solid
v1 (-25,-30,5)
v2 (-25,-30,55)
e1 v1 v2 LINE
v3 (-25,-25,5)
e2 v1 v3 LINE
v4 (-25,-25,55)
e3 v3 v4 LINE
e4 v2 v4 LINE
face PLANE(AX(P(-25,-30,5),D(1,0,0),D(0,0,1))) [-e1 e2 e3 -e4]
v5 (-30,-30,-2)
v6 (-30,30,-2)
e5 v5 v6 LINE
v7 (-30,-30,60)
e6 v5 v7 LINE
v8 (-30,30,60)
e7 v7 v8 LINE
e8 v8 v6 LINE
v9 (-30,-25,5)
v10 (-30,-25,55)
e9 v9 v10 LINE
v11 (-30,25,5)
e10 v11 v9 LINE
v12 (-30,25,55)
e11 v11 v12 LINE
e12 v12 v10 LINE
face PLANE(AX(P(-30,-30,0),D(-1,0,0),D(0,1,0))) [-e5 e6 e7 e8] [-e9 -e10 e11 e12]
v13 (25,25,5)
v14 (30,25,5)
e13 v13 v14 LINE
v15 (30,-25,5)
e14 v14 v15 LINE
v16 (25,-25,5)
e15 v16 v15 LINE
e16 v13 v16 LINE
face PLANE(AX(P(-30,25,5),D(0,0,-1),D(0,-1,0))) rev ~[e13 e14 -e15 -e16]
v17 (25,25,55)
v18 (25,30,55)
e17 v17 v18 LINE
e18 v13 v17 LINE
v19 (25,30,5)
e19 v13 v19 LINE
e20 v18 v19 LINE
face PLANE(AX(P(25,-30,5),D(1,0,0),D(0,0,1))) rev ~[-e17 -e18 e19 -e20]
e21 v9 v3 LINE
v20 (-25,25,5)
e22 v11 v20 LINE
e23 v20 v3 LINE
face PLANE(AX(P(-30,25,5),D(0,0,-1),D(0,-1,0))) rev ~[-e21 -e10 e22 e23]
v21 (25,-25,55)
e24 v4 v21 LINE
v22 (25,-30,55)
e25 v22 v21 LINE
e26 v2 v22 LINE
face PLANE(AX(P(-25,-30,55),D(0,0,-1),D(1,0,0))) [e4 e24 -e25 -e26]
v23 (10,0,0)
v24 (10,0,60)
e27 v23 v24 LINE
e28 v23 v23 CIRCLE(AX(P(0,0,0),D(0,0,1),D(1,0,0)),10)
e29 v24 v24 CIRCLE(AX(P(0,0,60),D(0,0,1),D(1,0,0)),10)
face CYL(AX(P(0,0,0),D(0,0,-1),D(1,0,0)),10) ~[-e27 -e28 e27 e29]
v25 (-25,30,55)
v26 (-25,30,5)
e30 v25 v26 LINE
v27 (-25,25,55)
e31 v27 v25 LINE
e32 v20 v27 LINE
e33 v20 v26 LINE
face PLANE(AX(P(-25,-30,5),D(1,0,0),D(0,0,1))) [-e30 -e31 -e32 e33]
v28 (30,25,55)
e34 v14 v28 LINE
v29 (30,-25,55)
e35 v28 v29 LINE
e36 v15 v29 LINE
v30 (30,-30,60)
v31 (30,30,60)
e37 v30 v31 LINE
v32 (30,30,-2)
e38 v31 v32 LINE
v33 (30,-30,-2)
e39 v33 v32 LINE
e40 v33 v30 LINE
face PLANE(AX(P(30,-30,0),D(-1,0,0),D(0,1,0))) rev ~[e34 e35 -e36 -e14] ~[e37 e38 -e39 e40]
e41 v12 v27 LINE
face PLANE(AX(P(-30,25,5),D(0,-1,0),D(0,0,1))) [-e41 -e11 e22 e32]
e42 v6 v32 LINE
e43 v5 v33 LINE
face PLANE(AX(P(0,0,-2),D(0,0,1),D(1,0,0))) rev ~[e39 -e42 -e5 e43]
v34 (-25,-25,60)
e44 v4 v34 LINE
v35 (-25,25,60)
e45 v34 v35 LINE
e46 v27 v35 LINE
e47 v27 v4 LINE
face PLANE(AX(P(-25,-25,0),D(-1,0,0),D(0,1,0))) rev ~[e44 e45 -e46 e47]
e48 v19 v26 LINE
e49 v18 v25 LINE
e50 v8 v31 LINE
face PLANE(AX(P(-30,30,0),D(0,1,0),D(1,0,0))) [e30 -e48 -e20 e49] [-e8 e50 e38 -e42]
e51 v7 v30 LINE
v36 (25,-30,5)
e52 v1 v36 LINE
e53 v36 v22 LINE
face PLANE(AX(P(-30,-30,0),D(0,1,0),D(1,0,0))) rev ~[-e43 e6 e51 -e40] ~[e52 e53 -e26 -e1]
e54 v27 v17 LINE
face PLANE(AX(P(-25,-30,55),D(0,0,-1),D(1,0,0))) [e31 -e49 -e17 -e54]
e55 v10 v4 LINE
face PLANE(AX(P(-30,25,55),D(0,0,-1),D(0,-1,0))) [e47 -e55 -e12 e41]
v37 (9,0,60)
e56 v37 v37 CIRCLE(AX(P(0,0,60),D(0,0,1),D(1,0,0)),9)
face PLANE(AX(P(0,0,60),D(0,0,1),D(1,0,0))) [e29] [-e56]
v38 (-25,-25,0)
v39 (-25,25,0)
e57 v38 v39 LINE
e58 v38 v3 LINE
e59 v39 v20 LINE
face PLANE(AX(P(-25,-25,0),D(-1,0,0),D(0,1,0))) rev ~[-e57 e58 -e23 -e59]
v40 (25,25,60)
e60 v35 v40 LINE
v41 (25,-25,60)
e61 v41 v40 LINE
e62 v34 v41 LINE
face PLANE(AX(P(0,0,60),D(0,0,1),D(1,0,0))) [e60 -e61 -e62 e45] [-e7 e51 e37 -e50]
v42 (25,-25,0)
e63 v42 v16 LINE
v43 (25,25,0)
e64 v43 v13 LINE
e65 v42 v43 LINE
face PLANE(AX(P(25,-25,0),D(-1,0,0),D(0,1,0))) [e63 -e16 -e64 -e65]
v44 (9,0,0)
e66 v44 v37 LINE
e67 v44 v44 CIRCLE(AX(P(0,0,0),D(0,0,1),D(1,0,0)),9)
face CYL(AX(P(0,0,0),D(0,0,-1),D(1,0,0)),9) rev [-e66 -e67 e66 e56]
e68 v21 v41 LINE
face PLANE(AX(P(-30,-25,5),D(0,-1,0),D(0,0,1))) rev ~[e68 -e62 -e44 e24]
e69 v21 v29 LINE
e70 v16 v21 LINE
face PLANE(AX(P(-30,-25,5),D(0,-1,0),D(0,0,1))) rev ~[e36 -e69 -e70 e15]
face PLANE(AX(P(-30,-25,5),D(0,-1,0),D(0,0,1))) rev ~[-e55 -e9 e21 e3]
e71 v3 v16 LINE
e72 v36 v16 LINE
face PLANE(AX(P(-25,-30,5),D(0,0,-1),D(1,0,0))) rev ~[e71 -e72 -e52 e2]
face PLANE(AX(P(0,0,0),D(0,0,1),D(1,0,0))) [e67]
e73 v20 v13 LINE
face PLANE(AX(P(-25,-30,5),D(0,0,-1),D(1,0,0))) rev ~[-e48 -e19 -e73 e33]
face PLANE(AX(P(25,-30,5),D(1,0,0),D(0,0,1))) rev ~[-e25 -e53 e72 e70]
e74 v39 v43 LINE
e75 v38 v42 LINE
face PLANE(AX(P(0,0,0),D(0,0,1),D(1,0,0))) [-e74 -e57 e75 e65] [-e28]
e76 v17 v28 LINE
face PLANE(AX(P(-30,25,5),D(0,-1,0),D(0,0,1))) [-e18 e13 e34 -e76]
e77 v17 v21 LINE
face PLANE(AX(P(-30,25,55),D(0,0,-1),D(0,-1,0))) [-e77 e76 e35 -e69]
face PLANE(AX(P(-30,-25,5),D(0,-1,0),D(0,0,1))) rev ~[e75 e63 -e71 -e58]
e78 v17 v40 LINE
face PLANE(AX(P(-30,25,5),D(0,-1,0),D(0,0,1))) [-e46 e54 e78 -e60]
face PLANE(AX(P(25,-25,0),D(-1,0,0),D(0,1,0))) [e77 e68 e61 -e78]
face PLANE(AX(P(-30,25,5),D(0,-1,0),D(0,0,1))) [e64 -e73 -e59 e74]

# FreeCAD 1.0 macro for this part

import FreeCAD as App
import Part
import Sketcher
from FreeCAD import Vector
Q = App.Units.Quantity

doc = App.newDocument("Part")
params = doc.addObject("Spreadsheet::Sheet", "Params")
for row, (alias, value) in enumerate([
    ("sketch1_width", "60 mm"),
    ("pad1_length", "2 mm"),
    ("sketch2_width", "60 mm"),
    ("sketch2_width2", "50 mm"),
    ("pad2_length", "60 mm"),
    ("sketch3_width", "50 mm"),
    ("sketch4_width", "50 mm"),
    ("sketch5_diameter", "20 mm"),
    ("sketch5_diameter2", "18 mm"),
    ("pad3_length", "60 mm"),
], start=1):
    params.set(f"A{row}", alias)
    params.set(f"B{row}", "=" + value)
    params.setAlias(f"B{row}", alias)

body = doc.addObject("PartDesign::Body", "Body")

sketch1 = doc.addObject("Sketcher::SketchObject", "Sketch")
body.addObject(sketch1)
sketch1.AttachmentSupport = (doc.XY_Plane, [""])
sketch1.MapMode = "FlatFace"
sketch1.addGeometry(Part.LineSegment(Vector(-30, 30, 0), Vector(-30, -30, 0)), False)
sketch1.addGeometry(Part.LineSegment(Vector(-30, -30, 0), Vector(30, -30, 0)), False)
sketch1.addGeometry(Part.LineSegment(Vector(30, -30, 0), Vector(30, 30, 0)), False)
sketch1.addGeometry(Part.LineSegment(Vector(30, 30, 0), Vector(-30, 30, 0)), False)
sketch1.addConstraint(Sketcher.Constraint("Coincident", 0, 2, 1, 1))
sketch1.addConstraint(Sketcher.Constraint("Coincident", 1, 2, 2, 1))
sketch1.addConstraint(Sketcher.Constraint("Coincident", 2, 2, 3, 1))
sketch1.addConstraint(Sketcher.Constraint("Coincident", 3, 2, 0, 1))
sketch1.addConstraint(Sketcher.Constraint("Vertical", 0))
sketch1.addConstraint(Sketcher.Constraint("Horizontal", 1))
sketch1.addConstraint(Sketcher.Constraint("Vertical", 2))
sketch1.addConstraint(Sketcher.Constraint("Horizontal", 3))
sketch1.addConstraint(Sketcher.Constraint("Symmetric", 0, 2, 2, 2, -1, 1))
sketch1.addConstraint(Sketcher.Constraint("Equal", 3, 0))
sketch1.addConstraint(Sketcher.Constraint("DistanceX", 1, 1, 1, 2, Q("60 mm")))
sketch1.setExpression("Constraints[10]", "Params.sketch1_width")
pad1 = doc.addObject("PartDesign::Pad", "Pad")
body.addObject(pad1)
pad1.Profile = sketch1
pad1.setExpression("Length", "Params.pad1_length")
pad1.Reversed = True

sketch2 = doc.addObject("Sketcher::SketchObject", "Sketch001")
body.addObject(sketch2)
sketch2.AttachmentSupport = (doc.XY_Plane, [""])
sketch2.MapMode = "FlatFace"
sketch2.addGeometry(Part.LineSegment(Vector(-30, 30, 0), Vector(-30, -30, 0)), False)
sketch2.addGeometry(Part.LineSegment(Vector(-30, -30, 0), Vector(30, -30, 0)), False)
sketch2.addGeometry(Part.LineSegment(Vector(30, -30, 0), Vector(30, 30, 0)), False)
sketch2.addGeometry(Part.LineSegment(Vector(30, 30, 0), Vector(-30, 30, 0)), False)
sketch2.addGeometry(Part.LineSegment(Vector(25, -25, 0), Vector(-25, -25, 0)), False)
sketch2.addGeometry(Part.LineSegment(Vector(-25, -25, 0), Vector(-25, 25, 0)), False)
sketch2.addGeometry(Part.LineSegment(Vector(-25, 25, 0), Vector(25, 25, 0)), False)
sketch2.addGeometry(Part.LineSegment(Vector(25, 25, 0), Vector(25, -25, 0)), False)
sketch2.addConstraint(Sketcher.Constraint("Coincident", 0, 2, 1, 1))
sketch2.addConstraint(Sketcher.Constraint("Coincident", 1, 2, 2, 1))
sketch2.addConstraint(Sketcher.Constraint("Coincident", 2, 2, 3, 1))
sketch2.addConstraint(Sketcher.Constraint("Coincident", 3, 2, 0, 1))
sketch2.addConstraint(Sketcher.Constraint("Coincident", 4, 2, 5, 1))
sketch2.addConstraint(Sketcher.Constraint("Coincident", 5, 2, 6, 1))
sketch2.addConstraint(Sketcher.Constraint("Coincident", 6, 2, 7, 1))
sketch2.addConstraint(Sketcher.Constraint("Coincident", 7, 2, 4, 1))
sketch2.addConstraint(Sketcher.Constraint("Vertical", 0))
sketch2.addConstraint(Sketcher.Constraint("Horizontal", 1))
sketch2.addConstraint(Sketcher.Constraint("Vertical", 2))
sketch2.addConstraint(Sketcher.Constraint("Horizontal", 3))
sketch2.addConstraint(Sketcher.Constraint("Horizontal", 4))
sketch2.addConstraint(Sketcher.Constraint("Vertical", 5))
sketch2.addConstraint(Sketcher.Constraint("Horizontal", 6))
sketch2.addConstraint(Sketcher.Constraint("Vertical", 7))
sketch2.addConstraint(Sketcher.Constraint("Symmetric", 0, 2, 2, 2, -1, 1))
sketch2.addConstraint(Sketcher.Constraint("Symmetric", 4, 2, 6, 2, -1, 1))
sketch2.addConstraint(Sketcher.Constraint("Equal", 3, 0))
sketch2.addConstraint(Sketcher.Constraint("Equal", 6, 5))
sketch2.addConstraint(Sketcher.Constraint("DistanceX", 1, 1, 1, 2, Q("60 mm")))
sketch2.addConstraint(Sketcher.Constraint("DistanceX", 4, 2, 4, 1, Q("50 mm")))
sketch2.setExpression("Constraints[20]", "Params.sketch2_width")
sketch2.setExpression("Constraints[21]", "Params.sketch2_width2")
pad2 = doc.addObject("PartDesign::Pad", "Pad001")
body.addObject(pad2)
pad2.Profile = sketch2
pad2.setExpression("Length", "Params.pad2_length")

sketch3 = doc.addObject("Sketcher::SketchObject", "Sketch002")
body.addObject(sketch3)
sketch3.AttachmentSupport = (doc.YZ_Plane, [""])
sketch3.MapMode = "FlatFace"
sketch3.AttachmentOffset = App.Placement(Vector(0, 0, -30), App.Rotation())
sketch3.addGeometry(Part.LineSegment(Vector(25, 55, 0), Vector(25, 5, 0)), False)
sketch3.addGeometry(Part.LineSegment(Vector(25, 5, 0), Vector(-25, 5, 0)), False)
sketch3.addGeometry(Part.LineSegment(Vector(-25, 5, 0), Vector(-25, 55, 0)), False)
sketch3.addGeometry(Part.LineSegment(Vector(-25, 55, 0), Vector(25, 55, 0)), False)
sketch3.addConstraint(Sketcher.Constraint("Coincident", 0, 2, 1, 1))
sketch3.addConstraint(Sketcher.Constraint("Coincident", 1, 2, 2, 1))
sketch3.addConstraint(Sketcher.Constraint("Coincident", 2, 2, 3, 1))
sketch3.addConstraint(Sketcher.Constraint("Coincident", 3, 2, 0, 1))
sketch3.addConstraint(Sketcher.Constraint("Vertical", 0))
sketch3.addConstraint(Sketcher.Constraint("Horizontal", 1))
sketch3.addConstraint(Sketcher.Constraint("Vertical", 2))
sketch3.addConstraint(Sketcher.Constraint("Horizontal", 3))
sketch3.addConstraint(Sketcher.Constraint("Equal", 3, 0))
sketch3.addConstraint(Sketcher.Constraint("DistanceX", 1, 2, 1, 1, Q("50 mm")))
sketch3.addConstraint(Sketcher.Constraint("DistanceX", -1, 1, 0, 2, Q("25 mm")))
sketch3.addConstraint(Sketcher.Constraint("DistanceY", -1, 1, 0, 2, Q("5 mm")))
sketch3.setExpression("Constraints[9]", "Params.sketch3_width")
pocket1 = doc.addObject("PartDesign::Pocket", "Pocket")
body.addObject(pocket1)
pocket1.Profile = sketch3
pocket1.Type = "ThroughAll"
pocket1.Reversed = True

sketch4 = doc.addObject("Sketcher::SketchObject", "Sketch003")
body.addObject(sketch4)
sketch4.AttachmentSupport = (doc.XZ_Plane, [""])
sketch4.MapMode = "FlatFace"
sketch4.AttachmentOffset = App.Placement(Vector(0, 0, 30), App.Rotation())
sketch4.addGeometry(Part.LineSegment(Vector(-25, 55, 0), Vector(-25, 5, 0)), False)
sketch4.addGeometry(Part.LineSegment(Vector(-25, 5, 0), Vector(25, 5, 0)), False)
sketch4.addGeometry(Part.LineSegment(Vector(25, 5, 0), Vector(25, 55, 0)), False)
sketch4.addGeometry(Part.LineSegment(Vector(25, 55, 0), Vector(-25, 55, 0)), False)
sketch4.addConstraint(Sketcher.Constraint("Coincident", 0, 2, 1, 1))
sketch4.addConstraint(Sketcher.Constraint("Coincident", 1, 2, 2, 1))
sketch4.addConstraint(Sketcher.Constraint("Coincident", 2, 2, 3, 1))
sketch4.addConstraint(Sketcher.Constraint("Coincident", 3, 2, 0, 1))
sketch4.addConstraint(Sketcher.Constraint("Vertical", 0))
sketch4.addConstraint(Sketcher.Constraint("Horizontal", 1))
sketch4.addConstraint(Sketcher.Constraint("Vertical", 2))
sketch4.addConstraint(Sketcher.Constraint("Horizontal", 3))
sketch4.addConstraint(Sketcher.Constraint("Equal", 3, 0))
sketch4.addConstraint(Sketcher.Constraint("DistanceX", 1, 1, 1, 2, Q("50 mm")))
sketch4.addConstraint(Sketcher.Constraint("DistanceX", 0, 2, -1, 1, Q("25 mm")))
sketch4.addConstraint(Sketcher.Constraint("DistanceY", -1, 1, 0, 2, Q("5 mm")))
sketch4.setExpression("Constraints[9]", "Params.sketch4_width")
pocket2 = doc.addObject("PartDesign::Pocket", "Pocket001")
body.addObject(pocket2)
pocket2.Profile = sketch4
pocket2.Type = "ThroughAll"

sketch5 = doc.addObject("Sketcher::SketchObject", "Sketch004")
body.addObject(sketch5)
sketch5.AttachmentSupport = (doc.XY_Plane, [""])
sketch5.MapMode = "FlatFace"
sketch5.addGeometry(Part.Circle(Vector(0, 0, 0), Vector(0, 0, 1), 10), False)
sketch5.addGeometry(Part.Circle(Vector(0, 0, 0), Vector(0, 0, 1), 9), False)
sketch5.addConstraint(Sketcher.Constraint("Coincident", 0, 3, -1, 1))
sketch5.addConstraint(Sketcher.Constraint("Coincident", 1, 3, -1, 1))
sketch5.addConstraint(Sketcher.Constraint("Diameter", 0, Q("20 mm")))
sketch5.addConstraint(Sketcher.Constraint("Diameter", 1, Q("18 mm")))
sketch5.setExpression("Constraints[2]", "Params.sketch5_diameter")
sketch5.setExpression("Constraints[3]", "Params.sketch5_diameter2")
pad3 = doc.addObject("PartDesign::Pad", "Pad002")
body.addObject(pad3)
pad3.Profile = sketch5
pad3.setExpression("Length", "Params.pad3_length")

doc.recompute()
